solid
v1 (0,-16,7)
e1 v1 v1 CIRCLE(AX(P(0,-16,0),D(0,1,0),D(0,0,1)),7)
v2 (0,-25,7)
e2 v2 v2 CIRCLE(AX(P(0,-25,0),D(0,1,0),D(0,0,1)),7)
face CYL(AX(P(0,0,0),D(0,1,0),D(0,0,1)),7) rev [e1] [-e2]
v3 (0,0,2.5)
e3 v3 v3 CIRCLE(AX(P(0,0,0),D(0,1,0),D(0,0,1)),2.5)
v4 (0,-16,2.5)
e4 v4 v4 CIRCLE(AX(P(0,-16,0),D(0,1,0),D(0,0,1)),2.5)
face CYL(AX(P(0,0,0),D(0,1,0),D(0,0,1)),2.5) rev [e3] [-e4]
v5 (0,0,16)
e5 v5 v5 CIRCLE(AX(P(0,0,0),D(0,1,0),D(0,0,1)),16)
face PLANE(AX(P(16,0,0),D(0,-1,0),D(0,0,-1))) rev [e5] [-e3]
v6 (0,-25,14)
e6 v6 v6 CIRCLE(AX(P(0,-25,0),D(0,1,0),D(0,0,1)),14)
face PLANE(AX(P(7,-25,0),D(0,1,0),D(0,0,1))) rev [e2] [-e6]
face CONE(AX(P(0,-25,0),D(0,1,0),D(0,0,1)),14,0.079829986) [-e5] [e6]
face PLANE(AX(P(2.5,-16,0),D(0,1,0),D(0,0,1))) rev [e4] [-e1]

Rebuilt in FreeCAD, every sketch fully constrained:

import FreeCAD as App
import Part
import Sketcher

V = App.Vector


def add_polygon(sketch, points):
    """Adds a closed chain of lines whose ends are joined by coincident constraints."""
    first, n = sketch.GeometryCount, len(points)
    for a, b in zip(points, points[1:] + points[:1]):
        sketch.addGeometry(Part.LineSegment(App.Vector(*a, 0), App.Vector(*b, 0)), False)
    for i in range(n):
        sketch.addConstraint(Sketcher.Constraint("Coincident", first + i, 2, first + (i + 1) % n, 1))

doc = App.newDocument("Part")
body = doc.addObject("PartDesign::Body", "Body")

# Sketch on XY plane
sketch1 = doc.addObject("Sketcher::SketchObject", "Sketch")
body.addObject(sketch1)
sketch1.AttachmentSupport = (doc.XY_Plane, [""])
sketch1.MapMode = "FlatFace"
add_polygon(sketch1, [(2.5, 0), (2.5, -16), (7, -16), (7, -25), (14, -25), (16, 0)])  # lines 0-5
sketch1.addConstraint([
    Sketcher.Constraint("Vertical", 0),
    Sketcher.Constraint("Horizontal", 1),
    Sketcher.Constraint("Vertical", 2),
    Sketcher.Constraint("Horizontal", 3),
    Sketcher.Constraint("Horizontal", 5),
    Sketcher.Constraint("PointOnObject", 4, 2, -1),
    Sketcher.Constraint("DistanceX", 3, 1, 3, 2, 7.0),
    Sketcher.Constraint("DistanceY", 0, 2, 0, 1, 16.0),
    Sketcher.Constraint("DistanceY", 2, 2, 2, 1, 9.0),
    Sketcher.Constraint("DistanceX", 1, 1, 1, 2, 4.5),
    Sketcher.Constraint("DistanceX", 5, 2, 5, 1, 13.5),
    Sketcher.Constraint("DistanceX", -1, 1, 1, 2, 7.0),
])
revolution = doc.addObject("PartDesign::Revolution", "Revolution")
body.addObject(revolution)
revolution.Profile = sketch1
revolution.ReferenceAxis = (sketch1, ["V_Axis"])
revolution.Angle = 360

doc.recompute()
